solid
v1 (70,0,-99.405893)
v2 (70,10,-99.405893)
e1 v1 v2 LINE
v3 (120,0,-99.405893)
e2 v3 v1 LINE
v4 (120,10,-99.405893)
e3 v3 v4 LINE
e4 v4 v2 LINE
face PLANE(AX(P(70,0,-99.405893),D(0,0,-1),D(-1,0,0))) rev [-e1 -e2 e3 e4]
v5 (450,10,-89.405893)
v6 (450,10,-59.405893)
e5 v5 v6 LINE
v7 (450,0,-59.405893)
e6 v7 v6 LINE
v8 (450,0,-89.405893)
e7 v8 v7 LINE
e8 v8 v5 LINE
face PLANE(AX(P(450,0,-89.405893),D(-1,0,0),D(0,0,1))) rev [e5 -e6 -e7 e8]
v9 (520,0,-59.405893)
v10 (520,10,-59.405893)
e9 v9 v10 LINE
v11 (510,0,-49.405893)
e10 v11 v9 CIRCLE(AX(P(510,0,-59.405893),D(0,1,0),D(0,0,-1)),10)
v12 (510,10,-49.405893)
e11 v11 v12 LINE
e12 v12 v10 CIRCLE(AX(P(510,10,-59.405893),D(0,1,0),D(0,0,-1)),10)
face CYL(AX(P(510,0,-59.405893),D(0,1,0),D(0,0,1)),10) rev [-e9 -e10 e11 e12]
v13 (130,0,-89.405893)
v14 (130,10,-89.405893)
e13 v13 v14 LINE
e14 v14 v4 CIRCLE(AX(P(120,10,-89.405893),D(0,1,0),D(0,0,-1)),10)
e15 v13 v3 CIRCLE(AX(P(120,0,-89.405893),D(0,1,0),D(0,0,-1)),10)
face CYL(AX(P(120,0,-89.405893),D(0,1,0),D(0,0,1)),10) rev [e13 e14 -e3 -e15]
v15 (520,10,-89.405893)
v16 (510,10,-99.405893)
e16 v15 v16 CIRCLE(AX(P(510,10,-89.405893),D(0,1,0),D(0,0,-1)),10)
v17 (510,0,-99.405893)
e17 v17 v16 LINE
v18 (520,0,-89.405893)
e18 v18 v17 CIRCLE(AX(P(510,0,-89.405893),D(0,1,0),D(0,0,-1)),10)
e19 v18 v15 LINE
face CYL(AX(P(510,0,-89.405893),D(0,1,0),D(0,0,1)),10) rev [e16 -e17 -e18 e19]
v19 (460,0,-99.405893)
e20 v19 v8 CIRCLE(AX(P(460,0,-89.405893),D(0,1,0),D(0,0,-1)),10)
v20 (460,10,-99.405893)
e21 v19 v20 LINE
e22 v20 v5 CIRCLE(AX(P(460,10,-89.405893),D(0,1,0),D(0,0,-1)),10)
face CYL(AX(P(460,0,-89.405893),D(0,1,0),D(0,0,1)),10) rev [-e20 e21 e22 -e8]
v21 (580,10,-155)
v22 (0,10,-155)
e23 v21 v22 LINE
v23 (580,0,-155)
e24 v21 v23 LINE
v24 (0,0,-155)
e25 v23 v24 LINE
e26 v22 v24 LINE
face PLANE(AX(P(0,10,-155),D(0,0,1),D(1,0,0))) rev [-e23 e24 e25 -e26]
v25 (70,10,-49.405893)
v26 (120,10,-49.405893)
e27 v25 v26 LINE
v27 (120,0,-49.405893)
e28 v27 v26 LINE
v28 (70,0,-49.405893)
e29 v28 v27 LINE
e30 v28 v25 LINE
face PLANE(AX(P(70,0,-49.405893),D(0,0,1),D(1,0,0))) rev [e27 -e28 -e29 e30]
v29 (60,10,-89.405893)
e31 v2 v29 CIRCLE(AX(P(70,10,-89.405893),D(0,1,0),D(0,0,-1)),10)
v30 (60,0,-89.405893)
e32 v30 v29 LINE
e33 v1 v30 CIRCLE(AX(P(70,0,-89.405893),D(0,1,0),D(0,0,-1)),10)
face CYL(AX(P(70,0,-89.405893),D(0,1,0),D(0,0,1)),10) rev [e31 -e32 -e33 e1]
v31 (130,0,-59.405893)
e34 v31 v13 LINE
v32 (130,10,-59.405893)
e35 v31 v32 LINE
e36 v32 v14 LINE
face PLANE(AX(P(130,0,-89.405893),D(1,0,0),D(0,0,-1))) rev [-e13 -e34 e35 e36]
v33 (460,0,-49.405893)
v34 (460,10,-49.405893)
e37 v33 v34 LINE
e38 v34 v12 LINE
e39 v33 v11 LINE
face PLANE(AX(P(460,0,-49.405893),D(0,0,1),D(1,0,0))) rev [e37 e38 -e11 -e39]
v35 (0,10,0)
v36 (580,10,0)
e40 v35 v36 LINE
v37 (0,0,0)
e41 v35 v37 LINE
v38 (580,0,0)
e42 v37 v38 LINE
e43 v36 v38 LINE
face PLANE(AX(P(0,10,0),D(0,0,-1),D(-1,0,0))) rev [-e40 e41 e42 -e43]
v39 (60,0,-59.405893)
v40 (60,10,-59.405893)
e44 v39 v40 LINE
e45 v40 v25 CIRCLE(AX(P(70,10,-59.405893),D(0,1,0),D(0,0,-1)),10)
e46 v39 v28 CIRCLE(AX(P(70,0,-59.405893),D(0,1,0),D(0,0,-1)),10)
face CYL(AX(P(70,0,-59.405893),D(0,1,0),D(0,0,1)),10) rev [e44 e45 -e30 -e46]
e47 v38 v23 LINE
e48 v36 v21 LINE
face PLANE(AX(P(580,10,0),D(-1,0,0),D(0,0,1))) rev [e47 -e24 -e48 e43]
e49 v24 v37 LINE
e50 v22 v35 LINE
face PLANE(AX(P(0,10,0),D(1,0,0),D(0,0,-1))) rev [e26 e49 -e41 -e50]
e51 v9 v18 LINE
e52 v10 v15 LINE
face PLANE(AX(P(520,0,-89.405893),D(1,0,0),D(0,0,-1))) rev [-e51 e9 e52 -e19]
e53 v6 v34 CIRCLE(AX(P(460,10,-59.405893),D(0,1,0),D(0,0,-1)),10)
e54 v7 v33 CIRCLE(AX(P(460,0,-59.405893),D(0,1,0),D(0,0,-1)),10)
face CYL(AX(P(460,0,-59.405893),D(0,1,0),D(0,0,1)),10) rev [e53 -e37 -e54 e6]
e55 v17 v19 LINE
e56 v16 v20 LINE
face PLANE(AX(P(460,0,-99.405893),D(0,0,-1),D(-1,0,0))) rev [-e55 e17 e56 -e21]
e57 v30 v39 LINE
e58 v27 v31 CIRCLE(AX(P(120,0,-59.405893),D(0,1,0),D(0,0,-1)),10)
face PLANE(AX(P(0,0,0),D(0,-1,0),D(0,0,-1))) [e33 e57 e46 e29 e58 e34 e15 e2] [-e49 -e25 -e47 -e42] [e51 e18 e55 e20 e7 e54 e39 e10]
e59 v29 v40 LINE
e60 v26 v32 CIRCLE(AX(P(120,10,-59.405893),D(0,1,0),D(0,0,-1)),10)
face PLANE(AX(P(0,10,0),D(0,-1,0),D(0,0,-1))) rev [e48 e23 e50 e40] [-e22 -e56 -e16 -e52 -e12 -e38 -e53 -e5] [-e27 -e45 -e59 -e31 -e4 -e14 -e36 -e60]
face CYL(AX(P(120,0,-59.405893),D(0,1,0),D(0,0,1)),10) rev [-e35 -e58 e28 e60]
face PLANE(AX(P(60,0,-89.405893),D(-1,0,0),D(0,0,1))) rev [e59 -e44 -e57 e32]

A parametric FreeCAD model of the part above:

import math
import FreeCAD as App
import Part
import Sketcher
from FreeCAD import Vector
Q = App.Units.Quantity


def add_polygon(sketch, points):
    """Adds a closed chain of lines whose ends are joined by coincident constraints."""
    first, n = sketch.GeometryCount, len(points)
    for a, b in zip(points, points[1:] + points[:1]):
        sketch.addGeometry(Part.LineSegment(App.Vector(*a, 0), App.Vector(*b, 0)), False)
    for i in range(n):
        sketch.addConstraint(Sketcher.Constraint("Coincident", first + i, 2, first + (i + 1) % n, 1))

doc = App.newDocument("Part")
body = doc.addObject("PartDesign::Body", "Body")

# Sketch on XZ plane
sketch1 = doc.addObject("Sketcher::SketchObject", "Sketch")
body.addObject(sketch1)
sketch1.AttachmentSupport = (doc.XZ_Plane, [""])
sketch1.MapMode = "FlatFace"
add_polygon(sketch1, [(0, -155), (0, 0), (580, 0), (580, -155)])  # lines 0-3
sketch1.addConstraint([
    Sketcher.Constraint("Vertical", 0),
    Sketcher.Constraint("Horizontal", 1),
    Sketcher.Constraint("Vertical", 2),
    Sketcher.Constraint("Horizontal", 3),
    Sketcher.Constraint("Coincident", 0, 2, -1, 1),
    Sketcher.Constraint("DistanceX", 1, 1, 1, 2, Q("580 mm")),
    Sketcher.Constraint("DistanceY", 0, 1, 0, 2, Q("155 mm")),
])
pad1 = doc.addObject("PartDesign::Pad", "Pad")
body.addObject(pad1)
pad1.Profile = sketch1
pad1.Length = 10
pad1.Reversed = True

# Sketch on XZ plane
sketch2 = doc.addObject("Sketcher::SketchObject", "Sketch001")
body.addObject(sketch2)
sketch2.AttachmentSupport = (doc.XZ_Plane, [""])
sketch2.MapMode = "FlatFace"
sketch2.AttachmentOffset = App.Placement(Vector(0, 0, -10), App.Rotation())
sketch2.addGeometry([
    Part.LineSegment(Vector(120, -99.405893, 0), Vector(70, -99.405893, 0)),  # 0
    Part.ArcOfCircle(Part.Circle(Vector(70, -89.405893, 0), Vector(0, 0, 1), 10), math.radians(180), math.radians(270)),  # 1
    Part.LineSegment(Vector(60, -89.405893, 0), Vector(60, -59.405893, 0)),  # 2
    Part.ArcOfCircle(Part.Circle(Vector(70, -59.405893, 0), Vector(0, 0, 1), 10), math.radians(90), math.radians(180)),  # 3
    Part.LineSegment(Vector(70, -49.405893, 0), Vector(120, -49.405893, 0)),  # 4
    Part.ArcOfCircle(Part.Circle(Vector(120, -59.405893, 0), Vector(0, 0, 1), 10), math.radians(0), math.radians(90)),  # 5
    Part.LineSegment(Vector(130, -59.405893, 0), Vector(130, -89.405893, 0)),  # 6
    Part.ArcOfCircle(Part.Circle(Vector(120, -89.405893, 0), Vector(0, 0, 1), 10), math.radians(-90), math.radians(0)),  # 7
    Part.LineSegment(Vector(510, -99.405893, 0), Vector(460, -99.405893, 0)),  # 8
    Part.ArcOfCircle(Part.Circle(Vector(460, -89.405893, 0), Vector(0, 0, 1), 10), math.radians(180), math.radians(270)),  # 9
    Part.LineSegment(Vector(450, -89.405893, 0), Vector(450, -59.405893, 0)),  # 10
    Part.ArcOfCircle(Part.Circle(Vector(460, -59.405893, 0), Vector(0, 0, 1), 10), math.radians(90), math.radians(180)),  # 11
    Part.LineSegment(Vector(460, -49.405893, 0), Vector(510, -49.405893, 0)),  # 12
    Part.ArcOfCircle(Part.Circle(Vector(510, -59.405893, 0), Vector(0, 0, 1), 10), math.radians(0), math.radians(90)),  # 13
    Part.LineSegment(Vector(520, -59.405893, 0), Vector(520, -89.405893, 0)),  # 14
    Part.ArcOfCircle(Part.Circle(Vector(510, -89.405893, 0), Vector(0, 0, 1), 10), math.radians(-90), math.radians(0)),  # 15
], False)
sketch2.addConstraint([
    Sketcher.Constraint("Tangent", 0, 2, 1, 2),
    Sketcher.Constraint("Tangent", 1, 1, 2, 1),
    Sketcher.Constraint("Tangent", 2, 2, 3, 2),
    Sketcher.Constraint("Tangent", 3, 1, 4, 1),
    Sketcher.Constraint("Tangent", 4, 2, 5, 2),
    Sketcher.Constraint("Tangent", 5, 1, 6, 1),
    Sketcher.Constraint("Tangent", 6, 2, 7, 2),
    Sketcher.Constraint("Tangent", 7, 1, 0, 1),
    Sketcher.Constraint("Tangent", 8, 2, 9, 2),
    Sketcher.Constraint("Tangent", 9, 1, 10, 1),
    Sketcher.Constraint("Tangent", 10, 2, 11, 2),
    Sketcher.Constraint("Tangent", 11, 1, 12, 1),
    Sketcher.Constraint("Tangent", 12, 2, 13, 2),
    Sketcher.Constraint("Tangent", 13, 1, 14, 1),
    Sketcher.Constraint("Tangent", 14, 2, 15, 2),
    Sketcher.Constraint("Tangent", 15, 1, 8, 1),
    Sketcher.Constraint("Horizontal", 0),
    Sketcher.Constraint("Vertical", 2),
    Sketcher.Constraint("Horizontal", 4),
    Sketcher.Constraint("Vertical", 6),
    Sketcher.Constraint("Horizontal", 8),
    Sketcher.Constraint("Vertical", 10),
    Sketcher.Constraint("Horizontal", 12),
    Sketcher.Constraint("Vertical", 14),
    Sketcher.Constraint("Equal", 1, 3),
    Sketcher.Constraint("Equal", 3, 5),
    Sketcher.Constraint("Equal", 5, 7),
    Sketcher.Constraint("Equal", 7, 9),
    Sketcher.Constraint("Equal", 9, 11),
    Sketcher.Constraint("Equal", 11, 13),
    Sketcher.Constraint("Equal", 13, 15),
    Sketcher.Constraint("Horizontal", 7, 3, 9, 3),
    Sketcher.Constraint("Horizontal", 5, 3, 11, 3),
    Sketcher.Constraint("Equal", 4, 8),
    Sketcher.Constraint("Radius", 1, Q("10 mm")),
    Sketcher.Constraint("DistanceX", 0, 2, 0, 1, Q("50 mm")),
    Sketcher.Constraint("DistanceY", 2, 1, 2, 2, Q("30 mm")),
    Sketcher.Constraint("DistanceX", -1, 1, 1, 3, Q("70 mm")),
    Sketcher.Constraint("DistanceX", -1, 1, 9, 3, Q("460 mm")),
    Sketcher.Constraint("DistanceY", 1, 3, -1, 1, Q("89.405893 mm")),
])
pocket1 = doc.addObject("PartDesign::Pocket", "Pocket")
body.addObject(pocket1)
pocket1.Profile = sketch2
pocket1.Length = 10
pocket1.Reversed = True

doc.recompute()
